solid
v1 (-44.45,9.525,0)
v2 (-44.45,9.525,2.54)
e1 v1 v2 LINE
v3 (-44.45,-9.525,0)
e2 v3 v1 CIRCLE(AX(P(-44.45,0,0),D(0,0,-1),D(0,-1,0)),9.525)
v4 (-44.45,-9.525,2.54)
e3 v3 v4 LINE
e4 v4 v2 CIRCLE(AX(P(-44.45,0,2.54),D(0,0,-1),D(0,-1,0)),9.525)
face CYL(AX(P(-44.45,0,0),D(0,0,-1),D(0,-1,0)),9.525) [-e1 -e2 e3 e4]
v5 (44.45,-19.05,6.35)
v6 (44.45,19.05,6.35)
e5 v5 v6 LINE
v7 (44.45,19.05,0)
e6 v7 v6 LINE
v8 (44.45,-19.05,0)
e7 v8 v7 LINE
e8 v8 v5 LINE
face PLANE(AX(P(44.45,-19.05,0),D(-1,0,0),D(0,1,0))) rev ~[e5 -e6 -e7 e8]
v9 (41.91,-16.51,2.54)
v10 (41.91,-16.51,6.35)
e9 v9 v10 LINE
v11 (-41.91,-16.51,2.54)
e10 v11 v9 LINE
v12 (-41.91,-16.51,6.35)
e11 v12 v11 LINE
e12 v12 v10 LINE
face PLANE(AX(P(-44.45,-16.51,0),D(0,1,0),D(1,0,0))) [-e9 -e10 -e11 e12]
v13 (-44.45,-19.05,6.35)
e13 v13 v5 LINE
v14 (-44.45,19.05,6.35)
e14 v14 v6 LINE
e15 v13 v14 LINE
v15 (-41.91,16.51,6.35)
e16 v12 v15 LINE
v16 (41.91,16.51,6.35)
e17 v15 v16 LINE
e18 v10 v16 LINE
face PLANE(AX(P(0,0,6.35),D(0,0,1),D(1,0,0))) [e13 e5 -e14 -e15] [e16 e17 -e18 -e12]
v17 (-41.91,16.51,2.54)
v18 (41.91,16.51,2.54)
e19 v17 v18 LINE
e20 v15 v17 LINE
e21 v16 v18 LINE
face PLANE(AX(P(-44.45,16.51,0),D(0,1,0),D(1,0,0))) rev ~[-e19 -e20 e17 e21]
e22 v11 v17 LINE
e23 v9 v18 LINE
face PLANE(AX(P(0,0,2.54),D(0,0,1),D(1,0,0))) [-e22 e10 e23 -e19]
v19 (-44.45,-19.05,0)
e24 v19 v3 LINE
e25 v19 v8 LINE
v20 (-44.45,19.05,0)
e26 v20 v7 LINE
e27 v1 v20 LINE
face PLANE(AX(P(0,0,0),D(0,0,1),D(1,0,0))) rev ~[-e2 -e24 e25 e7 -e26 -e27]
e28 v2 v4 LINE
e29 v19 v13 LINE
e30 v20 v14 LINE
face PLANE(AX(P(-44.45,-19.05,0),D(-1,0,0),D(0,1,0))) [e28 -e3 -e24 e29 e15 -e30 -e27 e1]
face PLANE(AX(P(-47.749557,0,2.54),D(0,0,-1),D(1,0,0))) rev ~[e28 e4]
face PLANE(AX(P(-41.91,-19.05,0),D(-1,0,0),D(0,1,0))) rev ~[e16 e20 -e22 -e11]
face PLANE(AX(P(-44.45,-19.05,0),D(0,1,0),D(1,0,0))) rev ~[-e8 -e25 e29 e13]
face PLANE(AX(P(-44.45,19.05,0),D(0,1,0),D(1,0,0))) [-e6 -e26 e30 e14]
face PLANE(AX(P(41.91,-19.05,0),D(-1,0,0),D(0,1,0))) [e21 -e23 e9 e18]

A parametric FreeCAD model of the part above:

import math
import FreeCAD as App
import Part
import Sketcher
Q = App.Units.Quantity


def faces_at(feature, points):
    """Names of the faces that lie closest to the given points."""
    faces = feature.Shape.Faces
    near = lambda p: min(range(len(faces)), key=lambda i: faces[i].distToShape(Part.Vertex(*p))[0])
    return sorted({f"Face{near(p) + 1}" for p in points})


def add_polygon(sketch, points):
    """Adds a closed chain of lines whose ends are joined by coincident constraints."""
    first, n = sketch.GeometryCount, len(points)
    for a, b in zip(points, points[1:] + points[:1]):
        sketch.addGeometry(Part.LineSegment(App.Vector(*a, 0), App.Vector(*b, 0)), False)
    for i in range(n):
        sketch.addConstraint(Sketcher.Constraint("Coincident", first + i, 2, first + (i + 1) % n, 1))

doc = App.newDocument("Part")
body = doc.addObject("PartDesign::Body", "Body")

# Sketch on XY plane
sketch1 = body.newObject("Sketcher::SketchObject", "Sketch")
sketch1.AttachmentSupport = (doc.getObject("XY_Plane"), [""])
sketch1.MapMode = "FlatFace"
add_polygon(sketch1, [(-44, 19), (-44, -19), (44, -19), (44, 19)])  # lines 0-3
sketch1.addConstraint(Sketcher.Constraint("Vertical", 0))
sketch1.addConstraint(Sketcher.Constraint("Horizontal", 1))
sketch1.addConstraint(Sketcher.Constraint("Vertical", 2))
sketch1.addConstraint(Sketcher.Constraint("Horizontal", 3))
sketch1.addConstraint(Sketcher.Constraint("Symmetric", 0, 2, 2, 2, -1, 1))
sketch1.addConstraint(Sketcher.Constraint("DistanceX", 1, 1, 1, 2, Q("3.5 in")))
sketch1.addConstraint(Sketcher.Constraint("DistanceY", 0, 2, 0, 1, Q("1.5 in")))
pad1 = body.newObject("PartDesign::Pad", "Pad")
pad1.Profile = sketch1
pad1.Length = Q("0.25 in")
doc.recompute()

thickness = body.newObject("PartDesign::Thickness", "Thickness")
thickness.Base = (pad1, faces_at(pad1, [(0, 0, 6.35)]))
thickness.Value = Q("0.1 in")
thickness.Reversed = True
thickness.Join = "Arc"

# Sketch on XY plane
sketch2 = body.newObject("Sketcher::SketchObject", "Sketch001")
sketch2.AttachmentSupport = (doc.getObject("XY_Plane"), [""])
sketch2.MapMode = "FlatFace"
sketch2.addGeometry(Part.LineSegment(App.Vector(-44, 10, 0), App.Vector(-44, -10, 0)), False)
sketch2.addGeometry(Part.ArcOfCircle(Part.Circle(App.Vector(-44, 0, 0), App.Vector(0, 0, 1), 10), math.radians(90), math.radians(270)), False)
sketch2.addConstraint(Sketcher.Constraint("Coincident", 0, 1, 1, 1))
sketch2.addConstraint(Sketcher.Constraint("Coincident", 1, 2, 0, 2))
sketch2.addConstraint(Sketcher.Constraint("Vertical", 0))
sketch2.addConstraint(Sketcher.Constraint("PointOnObject", 1, 3, -1))
sketch2.addConstraint(Sketcher.Constraint("Vertical", 1, 3, 0, 1))
sketch2.addConstraint(Sketcher.Constraint("Radius", 1, Q("0.375 in")))
sketch2.addConstraint(Sketcher.Constraint("DistanceX", 1, 3, -1, 1, Q("1.75 in")))
pad2 = body.newObject("PartDesign::Pad", "Pad001")
pad2.Profile = sketch2
pad2.Length = Q("0.1 in")

doc.recompute()
